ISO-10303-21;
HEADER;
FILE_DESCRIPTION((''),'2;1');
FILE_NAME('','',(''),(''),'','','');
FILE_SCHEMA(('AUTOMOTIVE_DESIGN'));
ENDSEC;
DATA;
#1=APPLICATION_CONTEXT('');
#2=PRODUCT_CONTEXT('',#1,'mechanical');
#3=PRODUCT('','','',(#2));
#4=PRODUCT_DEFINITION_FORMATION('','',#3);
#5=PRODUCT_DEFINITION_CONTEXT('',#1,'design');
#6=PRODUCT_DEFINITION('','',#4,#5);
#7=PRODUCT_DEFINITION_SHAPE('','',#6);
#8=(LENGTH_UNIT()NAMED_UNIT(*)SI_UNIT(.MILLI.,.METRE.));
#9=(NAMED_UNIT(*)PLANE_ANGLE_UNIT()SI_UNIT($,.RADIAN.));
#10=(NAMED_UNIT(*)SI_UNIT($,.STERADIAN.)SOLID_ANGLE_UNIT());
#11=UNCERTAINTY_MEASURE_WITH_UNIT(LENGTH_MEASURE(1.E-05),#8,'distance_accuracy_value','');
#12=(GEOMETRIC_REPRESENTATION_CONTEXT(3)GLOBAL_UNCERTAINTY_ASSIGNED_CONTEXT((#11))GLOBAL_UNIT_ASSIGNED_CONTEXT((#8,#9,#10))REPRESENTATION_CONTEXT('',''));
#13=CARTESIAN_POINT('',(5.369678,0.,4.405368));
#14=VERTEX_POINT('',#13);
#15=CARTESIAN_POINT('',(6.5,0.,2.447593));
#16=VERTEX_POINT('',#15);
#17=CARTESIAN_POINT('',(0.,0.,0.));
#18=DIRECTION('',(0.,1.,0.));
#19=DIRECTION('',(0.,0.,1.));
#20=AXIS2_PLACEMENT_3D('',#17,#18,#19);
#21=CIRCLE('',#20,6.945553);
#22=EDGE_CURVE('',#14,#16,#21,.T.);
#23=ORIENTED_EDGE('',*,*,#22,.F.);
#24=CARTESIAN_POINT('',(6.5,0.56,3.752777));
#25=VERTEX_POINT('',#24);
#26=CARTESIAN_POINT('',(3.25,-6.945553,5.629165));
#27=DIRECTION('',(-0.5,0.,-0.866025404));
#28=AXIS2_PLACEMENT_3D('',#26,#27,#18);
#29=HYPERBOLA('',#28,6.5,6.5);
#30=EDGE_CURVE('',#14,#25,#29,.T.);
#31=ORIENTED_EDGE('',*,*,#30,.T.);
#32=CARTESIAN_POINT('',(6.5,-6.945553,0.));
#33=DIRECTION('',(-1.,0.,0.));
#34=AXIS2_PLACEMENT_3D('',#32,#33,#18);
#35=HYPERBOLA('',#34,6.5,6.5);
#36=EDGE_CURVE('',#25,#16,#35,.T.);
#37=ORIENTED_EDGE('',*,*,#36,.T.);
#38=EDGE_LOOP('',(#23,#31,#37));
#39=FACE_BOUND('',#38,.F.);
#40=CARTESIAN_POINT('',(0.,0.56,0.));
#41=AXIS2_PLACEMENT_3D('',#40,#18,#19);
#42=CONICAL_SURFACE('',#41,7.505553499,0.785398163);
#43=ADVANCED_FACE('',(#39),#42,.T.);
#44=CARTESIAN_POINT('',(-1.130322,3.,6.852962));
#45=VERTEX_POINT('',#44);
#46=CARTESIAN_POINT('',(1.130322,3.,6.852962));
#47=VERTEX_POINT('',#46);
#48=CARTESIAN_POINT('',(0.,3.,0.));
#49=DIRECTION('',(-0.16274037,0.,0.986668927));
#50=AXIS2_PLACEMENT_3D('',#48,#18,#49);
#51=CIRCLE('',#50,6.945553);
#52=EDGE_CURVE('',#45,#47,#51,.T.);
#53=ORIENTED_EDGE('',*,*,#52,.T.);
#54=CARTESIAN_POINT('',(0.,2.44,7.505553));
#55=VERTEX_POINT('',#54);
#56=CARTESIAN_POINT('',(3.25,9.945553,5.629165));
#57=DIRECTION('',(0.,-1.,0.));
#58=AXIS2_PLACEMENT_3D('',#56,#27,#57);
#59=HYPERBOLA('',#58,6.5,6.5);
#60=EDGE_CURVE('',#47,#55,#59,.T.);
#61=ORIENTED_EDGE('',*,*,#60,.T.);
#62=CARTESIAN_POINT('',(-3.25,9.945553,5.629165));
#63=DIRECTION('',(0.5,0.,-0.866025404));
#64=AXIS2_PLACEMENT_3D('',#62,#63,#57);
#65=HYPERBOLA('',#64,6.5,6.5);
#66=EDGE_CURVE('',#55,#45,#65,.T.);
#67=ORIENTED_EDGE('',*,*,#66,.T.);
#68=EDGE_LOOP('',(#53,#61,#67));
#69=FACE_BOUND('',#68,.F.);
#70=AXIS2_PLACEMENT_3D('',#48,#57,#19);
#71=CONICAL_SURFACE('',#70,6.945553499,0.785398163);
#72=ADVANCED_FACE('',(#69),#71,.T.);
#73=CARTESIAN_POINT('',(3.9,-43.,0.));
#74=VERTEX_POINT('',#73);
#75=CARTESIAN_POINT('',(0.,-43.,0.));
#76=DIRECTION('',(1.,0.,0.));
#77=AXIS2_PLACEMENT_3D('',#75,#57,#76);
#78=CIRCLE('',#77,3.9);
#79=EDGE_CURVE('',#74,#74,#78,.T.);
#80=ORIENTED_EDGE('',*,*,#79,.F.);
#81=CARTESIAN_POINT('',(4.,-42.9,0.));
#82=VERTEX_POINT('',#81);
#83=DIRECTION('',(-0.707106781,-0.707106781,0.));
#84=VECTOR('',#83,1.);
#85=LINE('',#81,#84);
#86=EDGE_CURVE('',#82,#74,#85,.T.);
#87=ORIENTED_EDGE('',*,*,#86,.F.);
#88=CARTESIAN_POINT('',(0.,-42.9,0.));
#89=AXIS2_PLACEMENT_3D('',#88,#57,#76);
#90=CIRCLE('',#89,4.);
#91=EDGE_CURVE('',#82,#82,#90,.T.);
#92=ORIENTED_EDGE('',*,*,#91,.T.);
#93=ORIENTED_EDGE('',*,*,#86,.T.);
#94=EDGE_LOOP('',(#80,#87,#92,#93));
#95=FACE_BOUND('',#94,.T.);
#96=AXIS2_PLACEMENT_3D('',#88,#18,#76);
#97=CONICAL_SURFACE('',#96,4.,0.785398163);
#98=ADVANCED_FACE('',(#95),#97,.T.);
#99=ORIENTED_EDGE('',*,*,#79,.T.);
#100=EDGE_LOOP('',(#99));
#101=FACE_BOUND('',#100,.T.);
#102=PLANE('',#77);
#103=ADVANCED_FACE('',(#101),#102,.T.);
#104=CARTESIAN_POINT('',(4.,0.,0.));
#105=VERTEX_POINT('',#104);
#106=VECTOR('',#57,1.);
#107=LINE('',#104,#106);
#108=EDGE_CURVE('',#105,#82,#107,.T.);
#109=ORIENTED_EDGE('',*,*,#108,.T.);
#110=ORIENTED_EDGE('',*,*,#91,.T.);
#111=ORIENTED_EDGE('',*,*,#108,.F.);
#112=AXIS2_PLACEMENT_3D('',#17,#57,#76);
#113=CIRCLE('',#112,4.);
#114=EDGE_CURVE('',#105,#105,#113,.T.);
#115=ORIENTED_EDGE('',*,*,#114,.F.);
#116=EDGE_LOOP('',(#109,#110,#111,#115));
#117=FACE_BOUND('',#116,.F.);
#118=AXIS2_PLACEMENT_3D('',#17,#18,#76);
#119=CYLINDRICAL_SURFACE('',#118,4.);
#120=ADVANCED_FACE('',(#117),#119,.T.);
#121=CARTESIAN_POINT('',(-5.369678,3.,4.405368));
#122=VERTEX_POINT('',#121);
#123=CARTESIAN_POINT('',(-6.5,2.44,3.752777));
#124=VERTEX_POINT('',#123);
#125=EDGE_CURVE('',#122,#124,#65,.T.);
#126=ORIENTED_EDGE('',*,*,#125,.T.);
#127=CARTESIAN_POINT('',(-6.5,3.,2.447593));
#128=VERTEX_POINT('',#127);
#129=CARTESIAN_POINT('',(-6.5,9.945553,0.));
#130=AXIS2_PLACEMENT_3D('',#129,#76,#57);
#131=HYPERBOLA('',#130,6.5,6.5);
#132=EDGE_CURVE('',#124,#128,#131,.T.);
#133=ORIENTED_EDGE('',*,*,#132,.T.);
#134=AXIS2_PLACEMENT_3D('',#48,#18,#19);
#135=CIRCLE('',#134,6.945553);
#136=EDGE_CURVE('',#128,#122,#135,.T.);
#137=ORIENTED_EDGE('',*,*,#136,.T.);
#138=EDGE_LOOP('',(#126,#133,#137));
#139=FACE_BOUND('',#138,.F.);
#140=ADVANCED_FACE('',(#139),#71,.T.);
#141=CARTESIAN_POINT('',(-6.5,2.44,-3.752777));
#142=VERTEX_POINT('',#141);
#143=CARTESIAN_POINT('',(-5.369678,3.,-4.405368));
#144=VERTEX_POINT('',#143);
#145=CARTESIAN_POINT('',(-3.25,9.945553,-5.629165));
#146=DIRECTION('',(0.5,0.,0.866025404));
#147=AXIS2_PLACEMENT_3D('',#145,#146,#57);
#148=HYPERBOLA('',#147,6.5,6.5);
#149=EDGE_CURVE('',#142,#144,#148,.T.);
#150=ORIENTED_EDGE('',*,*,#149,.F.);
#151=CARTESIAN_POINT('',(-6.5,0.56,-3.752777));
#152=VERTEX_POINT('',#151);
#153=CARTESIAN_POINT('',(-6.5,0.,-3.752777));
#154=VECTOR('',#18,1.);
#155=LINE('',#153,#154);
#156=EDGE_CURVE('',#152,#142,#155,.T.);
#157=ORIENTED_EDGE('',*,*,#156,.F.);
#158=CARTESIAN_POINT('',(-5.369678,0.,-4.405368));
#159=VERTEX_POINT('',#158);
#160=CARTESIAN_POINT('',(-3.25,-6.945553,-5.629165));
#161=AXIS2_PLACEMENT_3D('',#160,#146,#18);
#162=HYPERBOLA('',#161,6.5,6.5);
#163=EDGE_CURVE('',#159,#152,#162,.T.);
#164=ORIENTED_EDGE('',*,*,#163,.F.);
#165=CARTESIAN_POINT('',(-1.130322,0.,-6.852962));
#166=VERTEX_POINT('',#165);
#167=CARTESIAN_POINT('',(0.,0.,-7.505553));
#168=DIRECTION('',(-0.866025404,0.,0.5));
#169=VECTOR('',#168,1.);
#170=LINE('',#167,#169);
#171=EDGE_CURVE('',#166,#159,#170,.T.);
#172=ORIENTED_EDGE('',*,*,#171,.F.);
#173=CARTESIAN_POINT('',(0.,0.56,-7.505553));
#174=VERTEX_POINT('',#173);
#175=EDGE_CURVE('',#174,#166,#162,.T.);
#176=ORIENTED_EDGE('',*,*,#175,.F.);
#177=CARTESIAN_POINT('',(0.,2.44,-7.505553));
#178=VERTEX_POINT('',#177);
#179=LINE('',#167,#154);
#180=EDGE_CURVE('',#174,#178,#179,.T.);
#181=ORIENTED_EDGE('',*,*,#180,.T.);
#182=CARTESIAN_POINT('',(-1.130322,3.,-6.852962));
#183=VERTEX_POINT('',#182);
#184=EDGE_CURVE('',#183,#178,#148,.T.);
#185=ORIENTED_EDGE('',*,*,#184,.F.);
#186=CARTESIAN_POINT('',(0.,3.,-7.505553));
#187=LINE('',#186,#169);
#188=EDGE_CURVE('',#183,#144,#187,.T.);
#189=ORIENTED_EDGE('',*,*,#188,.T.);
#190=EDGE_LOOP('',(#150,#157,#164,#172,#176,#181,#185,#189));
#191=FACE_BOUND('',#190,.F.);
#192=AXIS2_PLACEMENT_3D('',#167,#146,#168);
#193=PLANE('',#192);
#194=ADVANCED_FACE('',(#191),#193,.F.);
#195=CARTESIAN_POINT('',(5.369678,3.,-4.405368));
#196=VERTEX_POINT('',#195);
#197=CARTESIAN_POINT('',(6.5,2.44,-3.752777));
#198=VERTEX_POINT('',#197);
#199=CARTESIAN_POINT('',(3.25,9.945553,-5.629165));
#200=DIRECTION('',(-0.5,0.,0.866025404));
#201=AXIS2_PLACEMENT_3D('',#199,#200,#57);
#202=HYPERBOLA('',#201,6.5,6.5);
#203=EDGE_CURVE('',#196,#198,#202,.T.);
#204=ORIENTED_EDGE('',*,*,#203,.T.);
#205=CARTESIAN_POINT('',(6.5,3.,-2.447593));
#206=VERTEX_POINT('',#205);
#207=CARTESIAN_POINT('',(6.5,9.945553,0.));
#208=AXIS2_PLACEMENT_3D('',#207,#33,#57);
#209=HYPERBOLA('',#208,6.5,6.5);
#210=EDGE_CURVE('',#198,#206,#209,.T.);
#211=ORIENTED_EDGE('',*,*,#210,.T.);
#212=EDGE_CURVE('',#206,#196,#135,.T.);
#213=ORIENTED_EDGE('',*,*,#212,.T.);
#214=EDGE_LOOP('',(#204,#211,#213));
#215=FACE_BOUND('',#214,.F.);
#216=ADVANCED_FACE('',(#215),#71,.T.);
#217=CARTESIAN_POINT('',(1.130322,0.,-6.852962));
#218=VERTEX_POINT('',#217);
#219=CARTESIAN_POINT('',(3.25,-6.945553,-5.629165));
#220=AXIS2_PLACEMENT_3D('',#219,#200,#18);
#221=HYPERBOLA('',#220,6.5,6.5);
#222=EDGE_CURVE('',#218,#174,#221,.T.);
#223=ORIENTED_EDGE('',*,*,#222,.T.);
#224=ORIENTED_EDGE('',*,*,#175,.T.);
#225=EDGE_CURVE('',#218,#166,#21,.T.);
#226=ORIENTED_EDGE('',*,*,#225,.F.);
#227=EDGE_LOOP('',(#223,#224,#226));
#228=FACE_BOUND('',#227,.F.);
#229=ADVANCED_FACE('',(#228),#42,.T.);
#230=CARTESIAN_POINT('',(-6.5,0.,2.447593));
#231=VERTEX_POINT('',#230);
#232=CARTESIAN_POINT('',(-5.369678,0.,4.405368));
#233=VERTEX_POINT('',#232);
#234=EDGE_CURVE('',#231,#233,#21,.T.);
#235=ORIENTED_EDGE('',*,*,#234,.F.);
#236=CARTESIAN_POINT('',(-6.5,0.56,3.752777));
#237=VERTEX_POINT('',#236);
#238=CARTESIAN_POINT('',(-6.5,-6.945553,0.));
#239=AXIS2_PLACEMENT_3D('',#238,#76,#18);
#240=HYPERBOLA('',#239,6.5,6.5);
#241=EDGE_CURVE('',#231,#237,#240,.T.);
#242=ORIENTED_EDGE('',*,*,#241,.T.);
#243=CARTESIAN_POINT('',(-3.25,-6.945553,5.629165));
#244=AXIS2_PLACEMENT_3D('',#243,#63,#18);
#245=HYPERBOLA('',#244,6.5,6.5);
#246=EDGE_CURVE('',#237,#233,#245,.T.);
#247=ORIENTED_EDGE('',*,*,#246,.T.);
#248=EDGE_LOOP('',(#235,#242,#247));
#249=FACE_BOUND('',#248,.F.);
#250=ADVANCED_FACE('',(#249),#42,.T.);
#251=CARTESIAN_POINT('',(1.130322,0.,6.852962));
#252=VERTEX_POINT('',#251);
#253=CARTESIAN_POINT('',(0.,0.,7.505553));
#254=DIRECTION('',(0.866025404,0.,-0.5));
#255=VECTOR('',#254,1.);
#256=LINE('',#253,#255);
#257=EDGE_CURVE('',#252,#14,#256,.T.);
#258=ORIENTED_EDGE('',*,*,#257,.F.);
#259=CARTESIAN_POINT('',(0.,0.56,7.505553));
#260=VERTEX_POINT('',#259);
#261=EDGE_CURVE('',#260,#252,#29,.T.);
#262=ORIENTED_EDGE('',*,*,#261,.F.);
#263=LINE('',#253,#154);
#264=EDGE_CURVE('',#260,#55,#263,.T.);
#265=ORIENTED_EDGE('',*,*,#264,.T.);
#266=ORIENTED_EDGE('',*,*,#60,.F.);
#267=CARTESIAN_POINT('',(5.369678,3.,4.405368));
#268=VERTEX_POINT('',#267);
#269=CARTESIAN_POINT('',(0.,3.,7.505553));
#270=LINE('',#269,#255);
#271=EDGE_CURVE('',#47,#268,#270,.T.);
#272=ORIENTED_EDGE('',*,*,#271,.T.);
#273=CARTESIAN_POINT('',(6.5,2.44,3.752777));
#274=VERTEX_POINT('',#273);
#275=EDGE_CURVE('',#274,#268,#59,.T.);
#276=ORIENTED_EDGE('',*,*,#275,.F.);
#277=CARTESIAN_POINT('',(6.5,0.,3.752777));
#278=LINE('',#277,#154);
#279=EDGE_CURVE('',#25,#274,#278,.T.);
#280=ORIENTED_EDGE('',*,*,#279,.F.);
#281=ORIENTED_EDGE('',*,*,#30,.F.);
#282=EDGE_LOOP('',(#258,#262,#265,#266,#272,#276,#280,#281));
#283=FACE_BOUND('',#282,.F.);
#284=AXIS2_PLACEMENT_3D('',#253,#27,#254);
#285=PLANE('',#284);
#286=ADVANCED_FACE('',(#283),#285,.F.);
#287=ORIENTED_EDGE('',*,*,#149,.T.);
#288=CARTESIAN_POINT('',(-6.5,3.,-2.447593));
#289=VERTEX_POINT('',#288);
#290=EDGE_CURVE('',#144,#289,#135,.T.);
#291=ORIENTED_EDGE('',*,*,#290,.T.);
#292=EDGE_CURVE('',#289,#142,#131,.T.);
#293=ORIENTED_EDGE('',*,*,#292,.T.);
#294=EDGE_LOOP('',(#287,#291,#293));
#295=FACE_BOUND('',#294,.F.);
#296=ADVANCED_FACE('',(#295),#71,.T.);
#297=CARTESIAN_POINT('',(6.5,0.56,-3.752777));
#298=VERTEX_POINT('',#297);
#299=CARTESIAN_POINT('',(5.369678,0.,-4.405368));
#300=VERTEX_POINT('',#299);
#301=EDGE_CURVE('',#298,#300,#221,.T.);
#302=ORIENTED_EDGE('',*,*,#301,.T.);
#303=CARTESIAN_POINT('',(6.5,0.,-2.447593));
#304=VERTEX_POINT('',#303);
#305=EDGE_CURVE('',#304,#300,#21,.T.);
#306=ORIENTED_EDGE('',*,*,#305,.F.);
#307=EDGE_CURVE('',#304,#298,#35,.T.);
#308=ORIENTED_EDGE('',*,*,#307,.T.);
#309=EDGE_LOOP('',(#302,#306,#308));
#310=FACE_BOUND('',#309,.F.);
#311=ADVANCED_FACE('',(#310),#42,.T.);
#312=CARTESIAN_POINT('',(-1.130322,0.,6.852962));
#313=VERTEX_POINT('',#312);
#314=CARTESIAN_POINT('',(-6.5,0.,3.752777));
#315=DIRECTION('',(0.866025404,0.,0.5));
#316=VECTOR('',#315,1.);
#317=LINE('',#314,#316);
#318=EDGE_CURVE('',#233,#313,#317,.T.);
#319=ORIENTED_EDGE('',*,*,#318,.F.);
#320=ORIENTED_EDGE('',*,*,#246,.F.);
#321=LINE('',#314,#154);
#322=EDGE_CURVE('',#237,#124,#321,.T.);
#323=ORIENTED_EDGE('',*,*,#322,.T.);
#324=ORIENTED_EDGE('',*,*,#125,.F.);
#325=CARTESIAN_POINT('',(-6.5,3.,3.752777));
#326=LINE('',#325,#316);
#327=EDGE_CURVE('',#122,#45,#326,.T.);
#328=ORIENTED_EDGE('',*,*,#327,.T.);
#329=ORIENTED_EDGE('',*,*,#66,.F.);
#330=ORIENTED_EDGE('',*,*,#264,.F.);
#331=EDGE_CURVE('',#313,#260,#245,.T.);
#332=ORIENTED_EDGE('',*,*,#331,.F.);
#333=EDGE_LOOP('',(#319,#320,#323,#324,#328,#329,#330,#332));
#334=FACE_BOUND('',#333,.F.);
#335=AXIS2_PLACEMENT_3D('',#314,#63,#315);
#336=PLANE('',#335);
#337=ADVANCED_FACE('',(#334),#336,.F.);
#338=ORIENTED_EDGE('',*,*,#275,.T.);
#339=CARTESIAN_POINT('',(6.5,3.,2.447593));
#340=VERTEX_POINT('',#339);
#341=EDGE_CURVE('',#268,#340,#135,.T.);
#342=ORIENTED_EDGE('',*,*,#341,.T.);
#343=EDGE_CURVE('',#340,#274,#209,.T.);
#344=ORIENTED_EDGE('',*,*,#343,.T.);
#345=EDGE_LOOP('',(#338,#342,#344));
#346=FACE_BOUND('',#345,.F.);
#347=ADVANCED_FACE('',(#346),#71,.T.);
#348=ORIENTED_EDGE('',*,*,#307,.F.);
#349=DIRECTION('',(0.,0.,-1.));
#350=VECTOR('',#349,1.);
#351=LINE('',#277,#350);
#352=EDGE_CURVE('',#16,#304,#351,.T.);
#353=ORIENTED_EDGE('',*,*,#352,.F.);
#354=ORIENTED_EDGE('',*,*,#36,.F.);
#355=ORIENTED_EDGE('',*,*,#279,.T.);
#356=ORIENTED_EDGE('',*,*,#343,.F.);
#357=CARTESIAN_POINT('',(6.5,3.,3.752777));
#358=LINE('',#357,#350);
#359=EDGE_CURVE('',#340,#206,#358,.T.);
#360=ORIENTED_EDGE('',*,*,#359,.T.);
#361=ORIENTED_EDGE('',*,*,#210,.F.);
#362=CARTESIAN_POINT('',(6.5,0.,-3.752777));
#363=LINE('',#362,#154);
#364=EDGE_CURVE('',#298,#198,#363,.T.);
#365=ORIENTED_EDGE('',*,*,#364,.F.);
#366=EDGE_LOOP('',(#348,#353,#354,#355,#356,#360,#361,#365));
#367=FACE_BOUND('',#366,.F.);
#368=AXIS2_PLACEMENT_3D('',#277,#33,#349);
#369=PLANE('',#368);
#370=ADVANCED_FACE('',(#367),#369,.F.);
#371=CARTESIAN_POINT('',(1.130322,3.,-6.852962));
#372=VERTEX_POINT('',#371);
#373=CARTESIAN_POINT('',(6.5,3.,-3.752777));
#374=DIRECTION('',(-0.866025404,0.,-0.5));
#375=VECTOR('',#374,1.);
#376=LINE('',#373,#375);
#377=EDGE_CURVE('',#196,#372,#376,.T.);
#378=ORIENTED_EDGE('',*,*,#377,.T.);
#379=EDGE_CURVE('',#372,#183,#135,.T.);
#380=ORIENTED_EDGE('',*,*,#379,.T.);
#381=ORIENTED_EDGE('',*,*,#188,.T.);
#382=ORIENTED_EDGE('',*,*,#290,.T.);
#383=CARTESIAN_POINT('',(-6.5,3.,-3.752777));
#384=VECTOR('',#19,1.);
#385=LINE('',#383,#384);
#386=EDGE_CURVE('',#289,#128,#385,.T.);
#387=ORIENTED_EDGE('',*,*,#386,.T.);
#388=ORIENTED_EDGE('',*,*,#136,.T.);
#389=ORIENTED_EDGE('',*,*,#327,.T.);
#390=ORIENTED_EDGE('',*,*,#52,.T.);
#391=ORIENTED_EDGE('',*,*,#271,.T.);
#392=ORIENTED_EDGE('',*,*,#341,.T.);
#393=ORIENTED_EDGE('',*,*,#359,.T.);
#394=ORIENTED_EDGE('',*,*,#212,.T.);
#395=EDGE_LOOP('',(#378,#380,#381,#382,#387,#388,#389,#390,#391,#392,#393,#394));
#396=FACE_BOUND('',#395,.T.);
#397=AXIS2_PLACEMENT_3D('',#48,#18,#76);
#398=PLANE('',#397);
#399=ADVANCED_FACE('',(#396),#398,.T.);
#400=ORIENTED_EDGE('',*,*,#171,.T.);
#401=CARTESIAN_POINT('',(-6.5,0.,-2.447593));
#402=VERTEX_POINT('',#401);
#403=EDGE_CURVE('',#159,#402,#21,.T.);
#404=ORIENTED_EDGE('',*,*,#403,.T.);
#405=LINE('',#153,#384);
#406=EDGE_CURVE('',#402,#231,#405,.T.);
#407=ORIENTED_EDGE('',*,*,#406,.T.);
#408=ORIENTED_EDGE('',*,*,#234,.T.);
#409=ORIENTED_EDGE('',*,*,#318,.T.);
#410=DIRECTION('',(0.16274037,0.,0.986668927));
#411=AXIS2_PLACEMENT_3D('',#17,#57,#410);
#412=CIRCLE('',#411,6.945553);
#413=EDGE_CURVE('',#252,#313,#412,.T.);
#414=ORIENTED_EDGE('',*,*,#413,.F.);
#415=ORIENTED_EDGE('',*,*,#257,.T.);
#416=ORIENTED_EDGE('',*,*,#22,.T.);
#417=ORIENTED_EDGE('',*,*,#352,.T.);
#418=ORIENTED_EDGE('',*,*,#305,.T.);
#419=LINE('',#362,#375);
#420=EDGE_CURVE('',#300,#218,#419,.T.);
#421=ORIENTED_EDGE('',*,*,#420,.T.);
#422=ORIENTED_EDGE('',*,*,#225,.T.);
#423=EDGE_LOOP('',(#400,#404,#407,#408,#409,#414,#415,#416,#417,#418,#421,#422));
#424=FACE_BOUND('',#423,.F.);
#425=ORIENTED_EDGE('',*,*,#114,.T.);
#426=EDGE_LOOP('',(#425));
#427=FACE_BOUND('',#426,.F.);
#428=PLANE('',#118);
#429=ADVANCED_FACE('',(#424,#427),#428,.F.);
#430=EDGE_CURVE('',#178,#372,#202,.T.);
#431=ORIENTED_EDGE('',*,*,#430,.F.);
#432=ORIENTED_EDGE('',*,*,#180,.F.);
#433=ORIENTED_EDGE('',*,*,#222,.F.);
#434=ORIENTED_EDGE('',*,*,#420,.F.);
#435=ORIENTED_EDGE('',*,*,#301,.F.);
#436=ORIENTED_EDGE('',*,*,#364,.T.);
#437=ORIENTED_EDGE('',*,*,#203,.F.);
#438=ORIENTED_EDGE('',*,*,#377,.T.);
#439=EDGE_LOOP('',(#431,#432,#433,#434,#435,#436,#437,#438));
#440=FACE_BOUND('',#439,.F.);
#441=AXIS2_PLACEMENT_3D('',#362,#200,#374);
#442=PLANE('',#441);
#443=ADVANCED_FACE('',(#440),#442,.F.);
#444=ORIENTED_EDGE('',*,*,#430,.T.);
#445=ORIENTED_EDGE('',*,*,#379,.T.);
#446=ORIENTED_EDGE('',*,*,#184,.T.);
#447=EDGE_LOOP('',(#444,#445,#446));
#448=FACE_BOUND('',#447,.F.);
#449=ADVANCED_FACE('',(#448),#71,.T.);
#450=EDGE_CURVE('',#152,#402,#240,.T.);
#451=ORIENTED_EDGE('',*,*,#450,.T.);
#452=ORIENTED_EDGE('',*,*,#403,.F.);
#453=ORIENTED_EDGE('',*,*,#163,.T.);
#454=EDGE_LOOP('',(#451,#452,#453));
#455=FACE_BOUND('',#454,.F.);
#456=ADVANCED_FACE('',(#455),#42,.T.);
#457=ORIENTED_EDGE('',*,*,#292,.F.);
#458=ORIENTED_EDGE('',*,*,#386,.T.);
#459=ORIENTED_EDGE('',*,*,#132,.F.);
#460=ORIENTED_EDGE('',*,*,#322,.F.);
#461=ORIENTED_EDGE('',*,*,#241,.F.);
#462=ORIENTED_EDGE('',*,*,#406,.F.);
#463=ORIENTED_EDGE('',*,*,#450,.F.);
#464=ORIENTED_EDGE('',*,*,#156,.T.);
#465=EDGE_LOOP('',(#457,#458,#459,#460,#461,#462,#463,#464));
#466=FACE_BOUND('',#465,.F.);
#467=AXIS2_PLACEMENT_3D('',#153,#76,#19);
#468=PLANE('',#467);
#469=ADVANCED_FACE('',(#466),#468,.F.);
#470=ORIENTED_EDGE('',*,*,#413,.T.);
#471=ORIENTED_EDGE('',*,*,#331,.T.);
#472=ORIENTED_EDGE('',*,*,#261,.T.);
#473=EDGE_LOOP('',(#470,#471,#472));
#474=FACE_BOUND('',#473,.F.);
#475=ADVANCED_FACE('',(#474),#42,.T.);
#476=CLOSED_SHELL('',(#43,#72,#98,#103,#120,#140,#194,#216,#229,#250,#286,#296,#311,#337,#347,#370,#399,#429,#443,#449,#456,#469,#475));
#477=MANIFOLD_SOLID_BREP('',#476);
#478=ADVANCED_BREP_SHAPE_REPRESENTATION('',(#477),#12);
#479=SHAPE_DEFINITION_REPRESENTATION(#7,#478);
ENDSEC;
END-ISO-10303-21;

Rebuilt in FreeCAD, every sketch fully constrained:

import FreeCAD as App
import Part
import Sketcher
Q = App.Units.Quantity


def edges_at(feature, points):
    """Names of the edges that pass closest to the given points."""
    edges = feature.Shape.Edges
    near = lambda p: min(range(len(edges)), key=lambda i: edges[i].distToShape(Part.Vertex(*p))[0])
    return sorted({f"Edge{near(p) + 1}" for p in points})


def add_polygon(sketch, points):
    """Adds a closed chain of lines whose ends are joined by coincident constraints."""
    first, n = sketch.GeometryCount, len(points)
    for a, b in zip(points, points[1:] + points[:1]):
        sketch.addGeometry(Part.LineSegment(App.Vector(*a, 0), App.Vector(*b, 0)), False)
    for i in range(n):
        sketch.addConstraint(Sketcher.Constraint("Coincident", first + i, 2, first + (i + 1) % n, 1))

doc = App.newDocument("Part")
body = doc.addObject("PartDesign::Body", "Body")

sketch1 = body.newObject("Sketcher::SketchObject", "Sketch")
sketch1.AttachmentSupport = (doc.getObject("XZ_Plane"), [""])
sketch1.MapMode = "FlatFace"
add_polygon(sketch1, [(0, -8), (-6, -4), (-6, 4), (0, 8), (6, 4), (6, -4)])
sketch1.addConstraint([
    Sketcher.Constraint("Vertical", 1),
    Sketcher.Constraint("Vertical", 4),
    Sketcher.Constraint("Symmetric", 0, 2, 3, 2, -1, 1),
    Sketcher.Constraint("Symmetric", 2, 2, 5, 2, -1, 1),
    Sketcher.Constraint("PointOnObject", 2, 2, -2),
    Sketcher.Constraint("Parallel", 2, 5),
    Sketcher.Constraint("Horizontal", 1, 2, 3, 2),
    Sketcher.Constraint("Angle", 0, Q("150 deg")),
    Sketcher.Constraint("DistanceX", 1, 2, 3, 2, 13.0),
    Sketcher.Constraint("DistanceY", 1, 1, 1, 2, 7.505554),
])
pad1 = body.newObject("PartDesign::Pad", "Pad")
pad1.Profile = sketch1
pad1.Length = 3
pad1.Reversed = True

sketch2 = body.newObject("Sketcher::SketchObject", "Sketch001")
sketch2.AttachmentSupport = (doc.getObject("XZ_Plane"), [""])
sketch2.MapMode = "FlatFace"
sketch2.addGeometry(Part.Circle(App.Vector(0, 0, 0), App.Vector(0, 0, 1), 4), False)
sketch2.addConstraint([
    Sketcher.Constraint("Coincident", 0, 3, -1, 1),
    Sketcher.Constraint("Diameter", 0, 8.0),
])
pad2 = body.newObject("PartDesign::Pad", "Pad001")
pad2.Profile = sketch2
pad2.Length = 43
doc.recompute()

chamfer = body.newObject("PartDesign::Chamfer", "Chamfer")
chamfer.Base = (pad2, edges_at(pad2, [(-4, -43, 0)]))
chamfer.Size = 0.1

sketch3 = body.newObject("Sketcher::SketchObject", "Sketch002")
sketch3.AttachmentSupport = (doc.getObject("YZ_Plane"), [""])
sketch3.MapMode = "FlatFace"
add_polygon(sketch3, [(2.4, 7.5), (3, 6.9), (3, 7.5)])
add_polygon(sketch3, [(0.6, 7.5), (0, 7.5), (0, 6.9)])
sketch3.addConstraint([
    Sketcher.Constraint("Vertical", 1),
    Sketcher.Constraint("Horizontal", 2),
    Sketcher.Constraint("Horizontal", 3),
    Sketcher.Constraint("Vertical", 4),
    Sketcher.Constraint("PointOnObject", 3, 2, -2),
    Sketcher.Constraint("Perpendicular", 0, 5),
    Sketcher.Constraint("Horizontal", 2, 2, 3, 2),
    Sketcher.Constraint("Horizontal", 0, 2, 4, 2),
    Sketcher.Constraint("Equal", 2, 3),
    Sketcher.Constraint("DistanceX", -1, 1, 0, 2, 3.0),
    Sketcher.Constraint("DistanceX", 2, 2, 2, 1, 0.56),
    Sketcher.Constraint("DistanceY", -1, 1, 0, 2, 6.945553),
])
groove = body.newObject("PartDesign::Groove", "Groove")
groove.Profile = sketch3
groove.ReferenceAxis = (sketch3, ["H_Axis"])
groove.Angle = 360

doc.recompute()
